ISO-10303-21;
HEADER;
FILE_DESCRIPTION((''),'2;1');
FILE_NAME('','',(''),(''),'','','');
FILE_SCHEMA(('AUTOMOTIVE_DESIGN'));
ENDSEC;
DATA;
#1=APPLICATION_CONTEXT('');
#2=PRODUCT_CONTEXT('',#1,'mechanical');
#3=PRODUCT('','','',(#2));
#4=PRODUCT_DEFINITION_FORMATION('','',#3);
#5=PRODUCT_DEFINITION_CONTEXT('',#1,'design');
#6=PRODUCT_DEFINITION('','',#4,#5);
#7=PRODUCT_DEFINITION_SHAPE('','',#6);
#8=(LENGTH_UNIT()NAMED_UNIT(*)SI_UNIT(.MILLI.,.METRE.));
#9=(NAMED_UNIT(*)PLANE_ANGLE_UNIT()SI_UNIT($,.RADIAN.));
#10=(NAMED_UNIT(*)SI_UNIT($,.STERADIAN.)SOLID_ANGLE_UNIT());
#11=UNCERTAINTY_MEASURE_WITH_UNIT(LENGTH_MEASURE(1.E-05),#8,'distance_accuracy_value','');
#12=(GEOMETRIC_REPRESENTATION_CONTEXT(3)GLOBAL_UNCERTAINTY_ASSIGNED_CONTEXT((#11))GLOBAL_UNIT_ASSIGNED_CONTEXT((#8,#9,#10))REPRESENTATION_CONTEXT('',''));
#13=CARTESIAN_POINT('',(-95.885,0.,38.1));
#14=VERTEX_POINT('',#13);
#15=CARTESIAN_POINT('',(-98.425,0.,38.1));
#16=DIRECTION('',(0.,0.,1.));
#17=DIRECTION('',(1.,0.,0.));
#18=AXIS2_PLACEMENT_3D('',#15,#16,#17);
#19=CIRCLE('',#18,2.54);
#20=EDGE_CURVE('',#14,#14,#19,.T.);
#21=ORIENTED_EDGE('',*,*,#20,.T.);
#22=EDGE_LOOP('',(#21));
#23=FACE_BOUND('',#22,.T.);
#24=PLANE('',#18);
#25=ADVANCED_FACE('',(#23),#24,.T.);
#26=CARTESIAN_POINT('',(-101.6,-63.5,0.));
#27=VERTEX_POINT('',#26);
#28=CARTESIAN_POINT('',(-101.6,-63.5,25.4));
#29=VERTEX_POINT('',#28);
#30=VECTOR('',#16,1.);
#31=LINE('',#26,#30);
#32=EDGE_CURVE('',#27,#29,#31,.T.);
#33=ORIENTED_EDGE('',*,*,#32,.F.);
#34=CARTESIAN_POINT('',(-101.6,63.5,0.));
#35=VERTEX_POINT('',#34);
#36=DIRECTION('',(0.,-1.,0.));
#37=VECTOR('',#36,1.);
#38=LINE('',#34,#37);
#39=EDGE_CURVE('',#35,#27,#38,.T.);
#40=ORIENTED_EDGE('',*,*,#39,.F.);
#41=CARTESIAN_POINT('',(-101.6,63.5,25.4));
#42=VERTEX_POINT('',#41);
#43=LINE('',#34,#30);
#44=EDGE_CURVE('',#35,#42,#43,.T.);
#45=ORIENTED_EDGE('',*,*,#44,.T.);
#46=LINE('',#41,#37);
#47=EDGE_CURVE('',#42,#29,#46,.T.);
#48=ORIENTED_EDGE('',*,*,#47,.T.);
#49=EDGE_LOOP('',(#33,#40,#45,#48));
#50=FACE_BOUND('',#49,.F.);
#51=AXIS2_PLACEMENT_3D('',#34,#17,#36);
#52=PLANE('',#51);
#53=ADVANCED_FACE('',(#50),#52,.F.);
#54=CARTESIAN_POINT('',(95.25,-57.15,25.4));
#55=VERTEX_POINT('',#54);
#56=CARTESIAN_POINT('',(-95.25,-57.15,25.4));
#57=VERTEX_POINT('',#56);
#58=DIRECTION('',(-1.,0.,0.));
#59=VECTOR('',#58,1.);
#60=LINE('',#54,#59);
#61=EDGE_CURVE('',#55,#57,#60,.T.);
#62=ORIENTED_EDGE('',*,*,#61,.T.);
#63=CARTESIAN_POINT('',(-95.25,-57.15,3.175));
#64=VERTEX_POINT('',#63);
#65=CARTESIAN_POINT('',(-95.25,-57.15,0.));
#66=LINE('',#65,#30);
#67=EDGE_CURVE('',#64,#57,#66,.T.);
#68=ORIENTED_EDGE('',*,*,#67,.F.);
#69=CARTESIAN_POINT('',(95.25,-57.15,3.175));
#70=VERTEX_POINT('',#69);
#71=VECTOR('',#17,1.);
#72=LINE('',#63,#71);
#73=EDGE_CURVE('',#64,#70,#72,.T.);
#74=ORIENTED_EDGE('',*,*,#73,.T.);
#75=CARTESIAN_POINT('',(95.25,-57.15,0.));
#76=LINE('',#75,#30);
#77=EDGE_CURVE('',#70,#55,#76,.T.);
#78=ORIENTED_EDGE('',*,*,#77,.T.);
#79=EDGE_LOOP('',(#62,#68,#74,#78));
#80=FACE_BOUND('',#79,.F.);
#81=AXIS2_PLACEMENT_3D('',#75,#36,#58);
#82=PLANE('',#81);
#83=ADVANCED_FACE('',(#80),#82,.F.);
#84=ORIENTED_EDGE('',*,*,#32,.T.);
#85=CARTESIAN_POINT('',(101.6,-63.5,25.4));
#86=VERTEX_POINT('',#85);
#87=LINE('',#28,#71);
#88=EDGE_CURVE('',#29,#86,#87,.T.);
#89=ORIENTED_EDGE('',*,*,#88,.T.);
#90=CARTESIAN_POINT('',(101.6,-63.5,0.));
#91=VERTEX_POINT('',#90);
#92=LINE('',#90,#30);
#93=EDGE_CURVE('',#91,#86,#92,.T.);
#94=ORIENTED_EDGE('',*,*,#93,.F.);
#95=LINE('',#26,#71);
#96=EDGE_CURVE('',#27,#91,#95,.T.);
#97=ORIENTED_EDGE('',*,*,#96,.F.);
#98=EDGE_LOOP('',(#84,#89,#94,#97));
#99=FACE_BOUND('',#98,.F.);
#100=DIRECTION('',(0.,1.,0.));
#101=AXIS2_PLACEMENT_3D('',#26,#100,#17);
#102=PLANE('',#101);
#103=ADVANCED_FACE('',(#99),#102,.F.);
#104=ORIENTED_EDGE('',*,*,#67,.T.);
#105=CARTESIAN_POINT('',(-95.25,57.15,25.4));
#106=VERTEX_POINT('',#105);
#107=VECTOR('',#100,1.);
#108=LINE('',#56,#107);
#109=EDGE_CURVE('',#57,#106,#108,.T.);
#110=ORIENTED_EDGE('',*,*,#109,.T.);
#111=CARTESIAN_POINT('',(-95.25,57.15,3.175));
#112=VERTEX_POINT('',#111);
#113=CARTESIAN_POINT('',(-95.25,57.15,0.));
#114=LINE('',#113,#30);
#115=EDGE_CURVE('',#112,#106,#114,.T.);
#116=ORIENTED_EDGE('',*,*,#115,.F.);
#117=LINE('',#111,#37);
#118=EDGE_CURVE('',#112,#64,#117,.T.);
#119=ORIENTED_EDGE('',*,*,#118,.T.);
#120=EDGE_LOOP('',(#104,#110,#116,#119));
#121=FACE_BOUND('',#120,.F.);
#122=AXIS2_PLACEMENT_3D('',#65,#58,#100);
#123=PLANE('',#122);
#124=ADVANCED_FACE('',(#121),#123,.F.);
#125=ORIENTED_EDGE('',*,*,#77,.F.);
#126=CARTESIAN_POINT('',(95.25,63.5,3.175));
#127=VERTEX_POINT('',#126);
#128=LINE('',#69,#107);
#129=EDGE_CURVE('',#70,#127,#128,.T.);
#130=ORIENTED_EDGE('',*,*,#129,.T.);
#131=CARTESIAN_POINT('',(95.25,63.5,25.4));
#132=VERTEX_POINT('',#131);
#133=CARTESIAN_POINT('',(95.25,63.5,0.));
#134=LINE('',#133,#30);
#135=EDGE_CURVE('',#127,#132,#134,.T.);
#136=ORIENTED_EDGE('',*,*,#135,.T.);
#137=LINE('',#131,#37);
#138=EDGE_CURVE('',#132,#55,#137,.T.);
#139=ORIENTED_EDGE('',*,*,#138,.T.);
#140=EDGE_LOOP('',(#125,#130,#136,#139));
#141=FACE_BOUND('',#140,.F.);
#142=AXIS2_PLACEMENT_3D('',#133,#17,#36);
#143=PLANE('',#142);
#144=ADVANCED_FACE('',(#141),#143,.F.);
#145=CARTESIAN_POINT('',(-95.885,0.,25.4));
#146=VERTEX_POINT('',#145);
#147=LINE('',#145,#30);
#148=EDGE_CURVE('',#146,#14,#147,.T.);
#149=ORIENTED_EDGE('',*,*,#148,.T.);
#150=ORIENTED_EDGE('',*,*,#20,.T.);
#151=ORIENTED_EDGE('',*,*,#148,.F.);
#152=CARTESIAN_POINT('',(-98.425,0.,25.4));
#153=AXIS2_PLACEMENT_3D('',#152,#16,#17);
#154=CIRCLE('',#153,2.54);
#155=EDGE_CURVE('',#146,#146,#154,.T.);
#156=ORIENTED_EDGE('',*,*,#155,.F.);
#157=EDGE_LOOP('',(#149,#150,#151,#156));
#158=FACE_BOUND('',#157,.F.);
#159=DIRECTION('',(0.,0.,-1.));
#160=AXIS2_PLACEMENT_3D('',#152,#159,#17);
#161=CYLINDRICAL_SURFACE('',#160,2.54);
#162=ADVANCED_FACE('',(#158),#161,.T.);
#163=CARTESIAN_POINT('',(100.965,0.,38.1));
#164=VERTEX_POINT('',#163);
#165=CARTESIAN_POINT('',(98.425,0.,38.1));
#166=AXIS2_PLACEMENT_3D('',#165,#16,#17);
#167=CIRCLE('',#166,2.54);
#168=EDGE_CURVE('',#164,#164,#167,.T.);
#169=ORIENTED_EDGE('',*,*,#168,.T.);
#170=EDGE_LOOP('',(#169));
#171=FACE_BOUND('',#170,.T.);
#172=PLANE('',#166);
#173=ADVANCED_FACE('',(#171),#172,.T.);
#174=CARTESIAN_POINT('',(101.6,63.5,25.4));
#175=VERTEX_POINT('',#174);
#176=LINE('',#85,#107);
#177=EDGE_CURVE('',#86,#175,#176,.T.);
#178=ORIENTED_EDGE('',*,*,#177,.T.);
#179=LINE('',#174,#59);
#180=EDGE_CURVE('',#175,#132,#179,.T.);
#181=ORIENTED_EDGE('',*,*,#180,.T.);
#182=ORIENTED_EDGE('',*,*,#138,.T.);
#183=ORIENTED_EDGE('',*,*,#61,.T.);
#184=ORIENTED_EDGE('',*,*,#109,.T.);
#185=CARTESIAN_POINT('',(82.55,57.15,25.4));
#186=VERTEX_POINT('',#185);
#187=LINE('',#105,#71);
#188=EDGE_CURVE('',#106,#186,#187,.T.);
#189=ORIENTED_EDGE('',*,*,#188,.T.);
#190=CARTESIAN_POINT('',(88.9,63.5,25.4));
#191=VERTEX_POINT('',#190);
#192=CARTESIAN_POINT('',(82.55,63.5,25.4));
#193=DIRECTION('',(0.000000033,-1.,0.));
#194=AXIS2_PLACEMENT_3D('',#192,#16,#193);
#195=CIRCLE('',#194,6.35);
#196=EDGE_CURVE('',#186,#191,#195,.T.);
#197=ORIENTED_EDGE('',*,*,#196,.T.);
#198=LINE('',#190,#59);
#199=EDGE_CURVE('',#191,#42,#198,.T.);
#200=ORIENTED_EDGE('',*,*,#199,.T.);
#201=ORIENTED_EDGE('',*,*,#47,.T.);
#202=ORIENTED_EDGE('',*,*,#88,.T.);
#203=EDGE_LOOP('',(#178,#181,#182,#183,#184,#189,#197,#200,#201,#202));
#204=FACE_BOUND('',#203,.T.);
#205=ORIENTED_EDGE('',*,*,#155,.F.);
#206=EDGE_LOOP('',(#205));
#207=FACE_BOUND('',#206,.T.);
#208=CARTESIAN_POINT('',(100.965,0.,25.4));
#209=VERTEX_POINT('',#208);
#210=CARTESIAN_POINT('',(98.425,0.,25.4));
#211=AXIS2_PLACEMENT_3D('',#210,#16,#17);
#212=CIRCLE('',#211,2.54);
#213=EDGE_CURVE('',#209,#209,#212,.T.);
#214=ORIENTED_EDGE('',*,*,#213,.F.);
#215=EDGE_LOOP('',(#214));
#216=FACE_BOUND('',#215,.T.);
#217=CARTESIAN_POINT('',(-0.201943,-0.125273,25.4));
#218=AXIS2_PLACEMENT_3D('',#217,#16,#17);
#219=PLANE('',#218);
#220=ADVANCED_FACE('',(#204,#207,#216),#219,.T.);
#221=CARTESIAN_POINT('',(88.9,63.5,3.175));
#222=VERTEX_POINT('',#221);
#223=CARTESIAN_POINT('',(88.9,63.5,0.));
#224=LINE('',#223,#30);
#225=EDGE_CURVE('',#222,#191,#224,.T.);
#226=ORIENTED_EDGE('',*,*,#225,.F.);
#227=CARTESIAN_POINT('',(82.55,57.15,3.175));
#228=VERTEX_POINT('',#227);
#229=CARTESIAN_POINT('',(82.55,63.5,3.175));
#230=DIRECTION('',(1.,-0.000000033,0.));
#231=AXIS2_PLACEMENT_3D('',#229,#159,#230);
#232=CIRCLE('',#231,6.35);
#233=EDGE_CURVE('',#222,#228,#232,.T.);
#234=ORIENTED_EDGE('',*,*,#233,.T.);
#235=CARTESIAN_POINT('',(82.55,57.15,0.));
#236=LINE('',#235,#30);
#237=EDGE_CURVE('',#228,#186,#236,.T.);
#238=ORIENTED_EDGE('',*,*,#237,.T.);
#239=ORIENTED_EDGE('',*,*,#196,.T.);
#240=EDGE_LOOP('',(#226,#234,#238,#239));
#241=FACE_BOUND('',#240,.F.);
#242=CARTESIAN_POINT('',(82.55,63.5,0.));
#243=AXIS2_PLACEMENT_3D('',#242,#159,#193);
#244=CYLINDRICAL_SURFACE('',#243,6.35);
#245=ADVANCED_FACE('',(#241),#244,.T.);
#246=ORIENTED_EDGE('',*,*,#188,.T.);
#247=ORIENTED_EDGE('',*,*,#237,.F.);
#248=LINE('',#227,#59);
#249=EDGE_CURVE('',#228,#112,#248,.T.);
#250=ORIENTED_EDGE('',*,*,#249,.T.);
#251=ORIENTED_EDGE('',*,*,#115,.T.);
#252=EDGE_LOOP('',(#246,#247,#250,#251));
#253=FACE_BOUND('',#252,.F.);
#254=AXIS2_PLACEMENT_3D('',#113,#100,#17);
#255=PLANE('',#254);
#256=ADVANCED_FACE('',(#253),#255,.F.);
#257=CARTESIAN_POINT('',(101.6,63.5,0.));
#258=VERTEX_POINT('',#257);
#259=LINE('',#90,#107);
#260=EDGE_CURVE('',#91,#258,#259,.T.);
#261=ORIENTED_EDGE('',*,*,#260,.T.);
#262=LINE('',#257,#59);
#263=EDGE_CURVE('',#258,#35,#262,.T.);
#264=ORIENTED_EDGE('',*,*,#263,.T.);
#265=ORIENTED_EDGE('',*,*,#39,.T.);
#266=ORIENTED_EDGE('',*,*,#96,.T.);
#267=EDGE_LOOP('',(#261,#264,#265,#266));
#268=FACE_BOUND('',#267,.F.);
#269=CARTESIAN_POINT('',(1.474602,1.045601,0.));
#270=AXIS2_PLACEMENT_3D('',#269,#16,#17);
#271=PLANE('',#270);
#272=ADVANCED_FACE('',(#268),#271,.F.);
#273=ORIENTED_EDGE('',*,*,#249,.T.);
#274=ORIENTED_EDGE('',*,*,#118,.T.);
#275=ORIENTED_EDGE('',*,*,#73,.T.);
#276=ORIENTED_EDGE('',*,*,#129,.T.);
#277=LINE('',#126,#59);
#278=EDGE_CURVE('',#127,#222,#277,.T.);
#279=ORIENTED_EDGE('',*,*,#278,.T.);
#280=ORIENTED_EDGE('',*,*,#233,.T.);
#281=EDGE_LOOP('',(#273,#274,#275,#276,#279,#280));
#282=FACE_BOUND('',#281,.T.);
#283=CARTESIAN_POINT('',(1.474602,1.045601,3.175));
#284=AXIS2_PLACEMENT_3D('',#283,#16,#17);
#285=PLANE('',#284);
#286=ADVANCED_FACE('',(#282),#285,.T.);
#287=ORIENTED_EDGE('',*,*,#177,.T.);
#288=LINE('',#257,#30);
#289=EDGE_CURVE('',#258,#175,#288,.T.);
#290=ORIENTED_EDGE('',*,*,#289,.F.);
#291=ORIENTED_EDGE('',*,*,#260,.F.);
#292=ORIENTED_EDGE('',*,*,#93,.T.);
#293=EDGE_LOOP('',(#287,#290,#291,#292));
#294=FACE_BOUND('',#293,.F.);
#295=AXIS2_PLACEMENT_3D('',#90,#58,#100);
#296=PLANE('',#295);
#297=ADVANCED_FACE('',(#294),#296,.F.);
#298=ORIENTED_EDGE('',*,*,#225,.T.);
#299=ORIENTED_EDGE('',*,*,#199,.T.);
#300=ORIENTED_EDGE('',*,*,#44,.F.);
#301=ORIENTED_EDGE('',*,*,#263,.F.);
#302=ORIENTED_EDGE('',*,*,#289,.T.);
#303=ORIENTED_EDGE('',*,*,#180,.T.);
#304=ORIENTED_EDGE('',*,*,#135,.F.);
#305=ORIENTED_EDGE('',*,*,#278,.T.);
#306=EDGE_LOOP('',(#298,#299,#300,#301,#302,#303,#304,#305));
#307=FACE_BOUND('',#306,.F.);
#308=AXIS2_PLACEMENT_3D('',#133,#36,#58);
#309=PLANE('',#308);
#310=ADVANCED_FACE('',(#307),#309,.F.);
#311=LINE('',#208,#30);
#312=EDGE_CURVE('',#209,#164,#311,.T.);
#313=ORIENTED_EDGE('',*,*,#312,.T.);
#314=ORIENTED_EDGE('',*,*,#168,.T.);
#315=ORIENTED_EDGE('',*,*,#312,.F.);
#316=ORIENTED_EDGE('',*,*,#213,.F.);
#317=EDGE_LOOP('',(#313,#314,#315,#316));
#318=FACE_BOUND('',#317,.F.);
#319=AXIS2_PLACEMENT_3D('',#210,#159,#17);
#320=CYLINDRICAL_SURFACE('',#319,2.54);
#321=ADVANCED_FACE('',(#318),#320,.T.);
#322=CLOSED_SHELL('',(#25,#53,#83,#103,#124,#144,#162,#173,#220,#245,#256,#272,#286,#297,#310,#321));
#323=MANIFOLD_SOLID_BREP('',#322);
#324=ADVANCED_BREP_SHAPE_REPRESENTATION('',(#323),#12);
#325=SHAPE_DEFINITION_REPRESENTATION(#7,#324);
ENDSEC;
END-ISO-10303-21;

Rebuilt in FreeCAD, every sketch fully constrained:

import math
import FreeCAD as App
import Part
import Sketcher
from FreeCAD import Vector
Q = App.Units.Quantity

doc = App.newDocument("Part")
params = doc.addObject("Spreadsheet::Sheet", "Params")
for row, (alias, value) in enumerate([
    ("sketch1_width", "8 in"),
    ("sketch1_width2", "7 in"),
    ("sketch1_height", "5 in"),
    ("sketch1_radius", "0.25 in"),
    ("pad1_length", "1 in"),
    ("sketch2_width", "7 in"),
    ("sketch2_radius", "0.25 in"),
    ("sketch2_width2", "7.5 in"),
    ("sketch2_height", "4.5 in"),
    ("pad2_length", "0.125 in"),
    ("sketch3_diameter", "0.2 in"),
    ("pad3_length", "0.5 in"),
], start=1):
    params.set(f"A{row}", alias)
    params.set(f"B{row}", "=" + value)
    params.setAlias(f"B{row}", alias)

body = doc.addObject("PartDesign::Body", "Body")

# Sketch on XY plane
sketch1 = doc.addObject("Sketcher::SketchObject", "Sketch")
body.addObject(sketch1)
sketch1.AttachmentSupport = (doc.XY_Plane, [""])
sketch1.MapMode = "FlatFace"
sketch1.addGeometry(Part.LineSegment(Vector(88.9, 63.5, 0), Vector(-101.6, 63.5, 0)), False)
sketch1.addGeometry(Part.LineSegment(Vector(-101.6, 63.5, 0), Vector(-101.6, -63.5, 0)), False)
sketch1.addGeometry(Part.LineSegment(Vector(-101.6, -63.5, 0), Vector(101.6, -63.5, 0)), False)
sketch1.addGeometry(Part.LineSegment(Vector(101.6, -63.5, 0), Vector(101.6, 63.5, 0)), False)
sketch1.addGeometry(Part.LineSegment(Vector(101.6, 63.5, 0), Vector(95.25, 63.5, 0)), False)
sketch1.addGeometry(Part.LineSegment(Vector(95.25, 63.5, 0), Vector(95.25, -57.15, 0)), False)
sketch1.addGeometry(Part.LineSegment(Vector(95.25, -57.15, 0), Vector(-95.25, -57.15, 0)), False)
sketch1.addGeometry(Part.LineSegment(Vector(-95.25, -57.15, 0), Vector(-95.25, 57.15, 0)), False)
sketch1.addGeometry(Part.LineSegment(Vector(-95.25, 57.15, 0), Vector(82.55, 57.15, 0)), False)
sketch1.addGeometry(Part.ArcOfCircle(Part.Circle(Vector(82.55, 63.5, 0), Vector(0, 0, 1), 6.35), math.radians(-89.999998), math.radians(-0.000002)), False)
sketch1.addConstraint(Sketcher.Constraint("Coincident", 0, 2, 1, 1))
sketch1.addConstraint(Sketcher.Constraint("Coincident", 1, 2, 2, 1))
sketch1.addConstraint(Sketcher.Constraint("Coincident", 2, 2, 3, 1))
sketch1.addConstraint(Sketcher.Constraint("Coincident", 3, 2, 4, 1))
sketch1.addConstraint(Sketcher.Constraint("Coincident", 4, 2, 5, 1))
sketch1.addConstraint(Sketcher.Constraint("Coincident", 5, 2, 6, 1))
sketch1.addConstraint(Sketcher.Constraint("Coincident", 6, 2, 7, 1))
sketch1.addConstraint(Sketcher.Constraint("Coincident", 7, 2, 8, 1))
sketch1.addConstraint(Sketcher.Constraint("Tangent", 8, 2, 9, 1))
sketch1.addConstraint(Sketcher.Constraint("Coincident", 9, 2, 0, 1))
sketch1.addConstraint(Sketcher.Constraint("Horizontal", 0))
sketch1.addConstraint(Sketcher.Constraint("Vertical", 1))
sketch1.addConstraint(Sketcher.Constraint("Horizontal", 2))
sketch1.addConstraint(Sketcher.Constraint("Vertical", 3))
sketch1.addConstraint(Sketcher.Constraint("Horizontal", 4))
sketch1.addConstraint(Sketcher.Constraint("Vertical", 5))
sketch1.addConstraint(Sketcher.Constraint("Horizontal", 6))
sketch1.addConstraint(Sketcher.Constraint("Vertical", 7))
sketch1.addConstraint(Sketcher.Constraint("Horizontal", 8))
sketch1.addConstraint(Sketcher.Constraint("Symmetric", 0, 2, 2, 2, -1, 1))
sketch1.addConstraint(Sketcher.Constraint("Symmetric", 5, 2, 7, 2, -1, 1))
sketch1.addConstraint(Sketcher.Constraint("Horizontal", 9, 3, 0, 2))
sketch1.addConstraint(Sketcher.Constraint("Horizontal", 0, 2, 3, 2))
sketch1.addConstraint(Sketcher.Constraint("Equal", 0, 6))
sketch1.addConstraint(Sketcher.Constraint("DistanceX", 2, 1, 2, 2, Q("8 in")))
sketch1.addConstraint(Sketcher.Constraint("DistanceX", 8, 1, 8, 2, Q("7 in")))
sketch1.addConstraint(Sketcher.Constraint("DistanceY", 1, 2, 1, 1, Q("5 in")))
sketch1.addConstraint(Sketcher.Constraint("Radius", 9, Q("0.25 in")))
sketch1.setExpression("Constraints[24]", "Params.sketch1_width")
sketch1.setExpression("Constraints[25]", "Params.sketch1_width2")
sketch1.setExpression("Constraints[26]", "Params.sketch1_height")
sketch1.setExpression("Constraints[27]", "Params.sketch1_radius")
pad1 = doc.addObject("PartDesign::Pad", "Pad")
body.addObject(pad1)
pad1.Profile = sketch1
pad1.setExpression("Length", "Params.pad1_length")

# Sketch on XY plane
sketch2 = doc.addObject("Sketcher::SketchObject", "Sketch001")
body.addObject(sketch2)
sketch2.AttachmentSupport = (doc.XY_Plane, [""])
sketch2.MapMode = "FlatFace"
sketch2.addGeometry(Part.LineSegment(Vector(95.25, 63.5, 0), Vector(88.9, 63.5, 0)), False)
sketch2.addGeometry(Part.ArcOfCircle(Part.Circle(Vector(82.55, 63.5, 0), Vector(0, 0, 1), 6.35), math.radians(-89.999998), math.radians(-0.000002)), False)
sketch2.addGeometry(Part.LineSegment(Vector(82.55, 57.15, 0), Vector(-95.25, 57.15, 0)), False)
sketch2.addGeometry(Part.LineSegment(Vector(-95.25, 57.15, 0), Vector(-95.25, -57.15, 0)), False)
sketch2.addGeometry(Part.LineSegment(Vector(-95.25, -57.15, 0), Vector(95.25, -57.15, 0)), False)
sketch2.addGeometry(Part.LineSegment(Vector(95.25, -57.15, 0), Vector(95.25, 63.5, 0)), False)
sketch2.addConstraint(Sketcher.Constraint("Coincident", 0, 2, 1, 2))
sketch2.addConstraint(Sketcher.Constraint("Tangent", 1, 1, 2, 1))
sketch2.addConstraint(Sketcher.Constraint("Coincident", 2, 2, 3, 1))
sketch2.addConstraint(Sketcher.Constraint("Coincident", 3, 2, 4, 1))
sketch2.addConstraint(Sketcher.Constraint("Coincident", 4, 2, 5, 1))
sketch2.addConstraint(Sketcher.Constraint("Coincident", 5, 2, 0, 1))
sketch2.addConstraint(Sketcher.Constraint("Horizontal", 0))
sketch2.addConstraint(Sketcher.Constraint("Horizontal", 2))
sketch2.addConstraint(Sketcher.Constraint("Vertical", 3))
sketch2.addConstraint(Sketcher.Constraint("Horizontal", 4))
sketch2.addConstraint(Sketcher.Constraint("Vertical", 5))
sketch2.addConstraint(Sketcher.Constraint("Symmetric", 2, 2, 4, 2, -1, 1))
sketch2.addConstraint(Sketcher.Constraint("Horizontal", 1, 3, 0, 2))
sketch2.addConstraint(Sketcher.Constraint("DistanceX", 2, 2, 2, 1, Q("7 in")))
sketch2.addConstraint(Sketcher.Constraint("Radius", 1, Q("0.25 in")))
sketch2.addConstraint(Sketcher.Constraint("DistanceX", 4, 1, 4, 2, Q("7.5 in")))
sketch2.addConstraint(Sketcher.Constraint("DistanceY", 3, 2, 3, 1, Q("4.5 in")))
sketch2.setExpression("Constraints[13]", "Params.sketch2_width")
sketch2.setExpression("Constraints[14]", "Params.sketch2_radius")
sketch2.setExpression("Constraints[15]", "Params.sketch2_width2")
sketch2.setExpression("Constraints[16]", "Params.sketch2_height")
pad2 = doc.addObject("PartDesign::Pad", "Pad001")
body.addObject(pad2)
pad2.Profile = sketch2
pad2.setExpression("Length", "Params.pad2_length")

# Sketch on XY plane
sketch3 = doc.addObject("Sketcher::SketchObject", "Sketch002")
body.addObject(sketch3)
sketch3.AttachmentSupport = (doc.XY_Plane, [""])
sketch3.MapMode = "FlatFace"
sketch3.AttachmentOffset = App.Placement(Vector(0, 0, 1 * 25.4), App.Rotation())
sketch3.addGeometry(Part.Circle(Vector(-98.425, 0, 0), Vector(0, 0, 1), 2.54), False)
sketch3.addGeometry(Part.Circle(Vector(98.425, 0, 0), Vector(0, 0, 1), 2.54), False)
sketch3.addConstraint(Sketcher.Constraint("Equal", 0, 1))
sketch3.addConstraint(Sketcher.Constraint("Symmetric", 0, 3, 1, 3, -1, 1))
sketch3.addConstraint(Sketcher.Constraint("PointOnObject", 0, 3, -1))
sketch3.addConstraint(Sketcher.Constraint("Diameter", 0, Q("0.2 in")))
sketch3.addConstraint(Sketcher.Constraint("DistanceX", 0, 3, 1, 3, Q("7.75 in")))
sketch3.setExpression("Constraints[3]", "Params.sketch3_diameter")
pad3 = doc.addObject("PartDesign::Pad", "Pad002")
body.addObject(pad3)
pad3.Profile = sketch3
pad3.setExpression("Length", "Params.pad3_length")

doc.recompute()
